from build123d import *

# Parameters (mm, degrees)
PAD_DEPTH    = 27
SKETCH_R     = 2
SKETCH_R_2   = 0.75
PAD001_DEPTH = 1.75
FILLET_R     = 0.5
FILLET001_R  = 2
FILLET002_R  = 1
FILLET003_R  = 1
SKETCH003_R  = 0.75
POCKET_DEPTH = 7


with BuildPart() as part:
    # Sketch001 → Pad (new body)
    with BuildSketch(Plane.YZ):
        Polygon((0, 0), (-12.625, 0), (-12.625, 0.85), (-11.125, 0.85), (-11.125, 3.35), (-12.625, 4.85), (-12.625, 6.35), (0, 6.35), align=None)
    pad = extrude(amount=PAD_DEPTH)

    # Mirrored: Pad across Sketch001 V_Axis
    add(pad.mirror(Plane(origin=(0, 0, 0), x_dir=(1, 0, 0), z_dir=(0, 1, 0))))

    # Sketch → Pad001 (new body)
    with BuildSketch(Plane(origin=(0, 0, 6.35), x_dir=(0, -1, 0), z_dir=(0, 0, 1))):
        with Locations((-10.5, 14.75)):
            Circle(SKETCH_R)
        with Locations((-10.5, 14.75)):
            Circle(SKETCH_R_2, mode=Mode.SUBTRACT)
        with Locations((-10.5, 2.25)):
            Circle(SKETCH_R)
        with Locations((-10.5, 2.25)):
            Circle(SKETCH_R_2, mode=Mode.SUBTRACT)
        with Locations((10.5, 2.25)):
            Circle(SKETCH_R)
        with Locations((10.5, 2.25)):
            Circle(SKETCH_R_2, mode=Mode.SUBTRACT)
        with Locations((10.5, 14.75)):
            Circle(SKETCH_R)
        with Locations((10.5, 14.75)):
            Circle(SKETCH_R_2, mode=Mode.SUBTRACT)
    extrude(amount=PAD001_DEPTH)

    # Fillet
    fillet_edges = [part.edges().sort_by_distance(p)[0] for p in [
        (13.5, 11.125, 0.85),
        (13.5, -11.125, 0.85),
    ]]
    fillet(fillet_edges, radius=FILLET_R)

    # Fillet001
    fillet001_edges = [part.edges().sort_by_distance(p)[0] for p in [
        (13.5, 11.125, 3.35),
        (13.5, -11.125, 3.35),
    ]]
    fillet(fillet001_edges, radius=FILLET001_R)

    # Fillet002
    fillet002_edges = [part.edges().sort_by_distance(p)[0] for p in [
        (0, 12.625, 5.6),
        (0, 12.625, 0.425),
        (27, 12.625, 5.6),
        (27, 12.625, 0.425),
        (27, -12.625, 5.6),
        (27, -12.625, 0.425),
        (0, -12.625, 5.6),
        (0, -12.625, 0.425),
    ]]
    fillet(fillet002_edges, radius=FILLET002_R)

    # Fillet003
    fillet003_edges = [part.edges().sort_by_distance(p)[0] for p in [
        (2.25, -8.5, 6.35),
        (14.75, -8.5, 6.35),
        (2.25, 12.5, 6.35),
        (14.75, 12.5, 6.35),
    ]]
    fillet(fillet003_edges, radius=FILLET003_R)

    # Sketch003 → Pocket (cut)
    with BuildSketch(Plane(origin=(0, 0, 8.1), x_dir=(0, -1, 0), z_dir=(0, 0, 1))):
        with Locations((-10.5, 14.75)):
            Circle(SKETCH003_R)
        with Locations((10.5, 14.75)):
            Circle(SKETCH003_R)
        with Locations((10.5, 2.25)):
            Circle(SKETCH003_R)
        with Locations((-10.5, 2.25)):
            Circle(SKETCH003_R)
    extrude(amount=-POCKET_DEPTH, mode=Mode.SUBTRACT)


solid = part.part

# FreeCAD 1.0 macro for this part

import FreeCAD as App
import Part
import Sketcher

V = App.Vector
Q = App.Units.Quantity


def edges_at(feature, points):
    """Names of the edges that pass closest to the given points."""
    edges = feature.Shape.Edges
    near = lambda p: min(range(len(edges)), key=lambda i: edges[i].distToShape(Part.Vertex(*p))[0])
    return sorted({f"Edge{near(p) + 1}" for p in points})


def add_polygon(sketch, points):
    """Adds a closed chain of lines whose ends are joined by coincident constraints."""
    first, n = sketch.GeometryCount, len(points)
    for a, b in zip(points, points[1:] + points[:1]):
        sketch.addGeometry(Part.LineSegment(App.Vector(*a, 0), App.Vector(*b, 0)), False)
    for i in range(n):
        sketch.addConstraint(Sketcher.Constraint("Coincident", first + i, 2, first + (i + 1) % n, 1))

doc = App.newDocument("Part")
params = doc.addObject("Spreadsheet::Sheet", "Params")
for row, (alias, value) in enumerate([
    ("sketch1_width", "1.5 mm"),
    ("sketch1_height", "2.5 mm"),
    ("sketch1_height2", "6.35 mm"),
    ("pad1_length", "27 mm"),
    ("sketch2_diameter", "4 mm"),
    ("sketch2_diameter2", "1.5 mm"),
    ("pad2_length", "1.75 mm"),
    ("fillet_radius", "0.5 mm"),
    ("fillet2_radius", "2 mm"),
    ("fillet3_radius", "1 mm"),
    ("fillet4_radius", "1 mm"),
    ("sketch3_diameter", "1.5 mm"),
    ("pocket1_length", "7 mm"),
], start=1):
    params.set(f"A{row}", alias)
    params.set(f"B{row}", "=" + value)
    params.setAlias(f"B{row}", alias)

body = doc.addObject("PartDesign::Body", "Body")

# Sketch on YZ plane
sketch1 = doc.addObject("Sketcher::SketchObject", "Sketch")
body.addObject(sketch1)
sketch1.AttachmentSupport = (doc.YZ_Plane, [""])
sketch1.MapMode = "FlatFace"
add_polygon(sketch1, [(-12.6, 0), (0, 0), (0, 6.3), (-12.6, 6.3), (-12.6, 4.8), (-11.1, 3.4), (-11.1, 0.8), (-12.6, 0.8)])  # lines 0-7
sketch1.addConstraint(Sketcher.Constraint("Horizontal", 0))
sketch1.addConstraint(Sketcher.Constraint("Vertical", 1))
sketch1.addConstraint(Sketcher.Constraint("Horizontal", 2))
sketch1.addConstraint(Sketcher.Constraint("Vertical", 3))
sketch1.addConstraint(Sketcher.Constraint("Vertical", 5))
sketch1.addConstraint(Sketcher.Constraint("Horizontal", 6))
sketch1.addConstraint(Sketcher.Constraint("Vertical", 7))
sketch1.addConstraint(Sketcher.Constraint("Coincident", 0, 2, -1, 1))
sketch1.addConstraint(Sketcher.Constraint("Vertical", 3, 2, 6, 2))
sketch1.addConstraint(Sketcher.Constraint("Equal", 6, 3))
sketch1.addConstraint(Sketcher.Constraint("Angle", 4, Q("-45 deg")))
sketch1.addConstraint(Sketcher.Constraint("DistanceX", 6, 2, 6, 1, 1.5))
sketch1.addConstraint(Sketcher.Constraint("DistanceY", 5, 2, 5, 1, 2.5))
sketch1.addConstraint(Sketcher.Constraint("DistanceY", 1, 1, 1, 2, 6.35))
sketch1.addConstraint(Sketcher.Constraint("DistanceX", 0, 1, 0, 2, 12.625))
sketch1.setExpression("Constraints[19]", "Params.sketch1_width")
sketch1.setExpression("Constraints[20]", "Params.sketch1_height")
sketch1.setExpression("Constraints[21]", "Params.sketch1_height2")
pad1 = doc.addObject("PartDesign::Pad", "Pad")
body.addObject(pad1)
pad1.Profile = sketch1
pad1.setExpression("Length", "Params.pad1_length")
doc.recompute()

mirrored = doc.addObject("PartDesign::Mirrored", "Mirrored")
body.addObject(mirrored)
mirrored.Originals = [pad1]
mirrored.MirrorPlane = (doc.XZ_Plane, [""])
body.Tip = mirrored

# Sketch on XY plane
sketch2 = doc.addObject("Sketcher::SketchObject", "Sketch001")
body.addObject(sketch2)
sketch2.AttachmentSupport = (doc.XY_Plane, [""])
sketch2.MapMode = "FlatFace"
sketch2.AttachmentOffset = App.Placement(V(0, 0, 6.35), App.Rotation())
sketch2.addGeometry(Part.Circle(V(14.8, 10.5, 0), V(0, 0, 1), 2), False)
sketch2.addGeometry(Part.Circle(V(14.8, 10.5, 0), V(0, 0, 1), 0.8), False)
sketch2.addGeometry(Part.Circle(V(2.2, 10.5, 0), V(0, 0, 1), 2), False)
sketch2.addGeometry(Part.Circle(V(2.2, 10.5, 0), V(0, 0, 1), 0.8), False)
sketch2.addGeometry(Part.Circle(V(2.2, -10.5, 0), V(0, 0, 1), 2), False)
sketch2.addGeometry(Part.Circle(V(2.2, -10.5, 0), V(0, 0, 1), 0.8), False)
sketch2.addGeometry(Part.Circle(V(14.8, -10.5, 0), V(0, 0, 1), 2), False)
sketch2.addGeometry(Part.Circle(V(14.8, -10.5, 0), V(0, 0, 1), 0.8), False)
sketch2.addConstraint(Sketcher.Constraint("Coincident", 1, 3, 0, 3))
sketch2.addConstraint(Sketcher.Constraint("Coincident", 3, 3, 2, 3))
sketch2.addConstraint(Sketcher.Constraint("Coincident", 5, 3, 4, 3))
sketch2.addConstraint(Sketcher.Constraint("Coincident", 7, 3, 6, 3))
sketch2.addConstraint(Sketcher.Constraint("Equal", 0, 2))
sketch2.addConstraint(Sketcher.Constraint("Equal", 1, 3))
sketch2.addConstraint(Sketcher.Constraint("Equal", 2, 4))
sketch2.addConstraint(Sketcher.Constraint("Equal", 3, 5))
sketch2.addConstraint(Sketcher.Constraint("Equal", 4, 6))
sketch2.addConstraint(Sketcher.Constraint("Equal", 5, 7))
sketch2.addConstraint(Sketcher.Constraint("Symmetric", 2, 3, 4, 3, -1))
sketch2.addConstraint(Sketcher.Constraint("Symmetric", 0, 3, 6, 3, -1))
sketch2.addConstraint(Sketcher.Constraint("Horizontal", 1, 3, 2, 3))
sketch2.addConstraint(Sketcher.Constraint("Diameter", 0, 4.0))
sketch2.addConstraint(Sketcher.Constraint("Diameter", 1, 1.5))
sketch2.addConstraint(Sketcher.Constraint("DistanceY", 4, 3, 2, 3, 21.0))
sketch2.addConstraint(Sketcher.Constraint("DistanceX", 2, 3, 0, 3, 12.5))
sketch2.addConstraint(Sketcher.Constraint("DistanceX", -1, 1, 0, 3, 14.75))
sketch2.setExpression("Constraints[13]", "Params.sketch2_diameter")
sketch2.setExpression("Constraints[14]", "Params.sketch2_diameter2")
pad2 = doc.addObject("PartDesign::Pad", "Pad001")
body.addObject(pad2)
pad2.Profile = sketch2
pad2.setExpression("Length", "Params.pad2_length")
doc.recompute()

fillet = doc.addObject("PartDesign::Fillet", "Fillet")
body.addObject(fillet)
fillet.Base = (pad2, edges_at(pad2, [(13.5, 11.125, 0.85), (13.5, -11.125, 0.85)]))
fillet.setExpression("Radius", "Params.fillet_radius")
doc.recompute()

fillet2 = doc.addObject("PartDesign::Fillet", "Fillet001")
body.addObject(fillet2)
fillet2.Base = (fillet, edges_at(fillet, [(13.5, 11.125, 3.35), (13.5, -11.125, 3.35)]))
fillet2.setExpression("Radius", "Params.fillet2_radius")
doc.recompute()

fillet3 = doc.addObject("PartDesign::Fillet", "Fillet002")
body.addObject(fillet3)
fillet3.Base = (fillet2, edges_at(fillet2, [
    (0, 12.625, 5.6),
    (0, 12.625, 0.425),
    (27, 12.625, 5.6),
    (27, 12.625, 0.425),
    (27, -12.625, 5.6),
    (27, -12.625, 0.425),
    (0, -12.625, 5.6),
    (0, -12.625, 0.425),
]))
fillet3.setExpression("Radius", "Params.fillet3_radius")
doc.recompute()

fillet4 = doc.addObject("PartDesign::Fillet", "Fillet003")
body.addObject(fillet4)
fillet4.Base = (fillet3, edges_at(fillet3, [
    (2.25, -8.5, 6.35),
    (14.75, -8.5, 6.35),
    (2.25, 12.5, 6.35),
    (14.75, 12.5, 6.35),
]))
fillet4.setExpression("Radius", "Params.fillet4_radius")

# Sketch on XY plane
sketch3 = doc.addObject("Sketcher::SketchObject", "Sketch002")
body.addObject(sketch3)
sketch3.AttachmentSupport = (doc.XY_Plane, [""])
sketch3.MapMode = "FlatFace"
sketch3.AttachmentOffset = App.Placement(V(0, 0, 8.1), App.Rotation())
sketch3.addGeometry(Part.Circle(V(14.8, 10.5, 0), V(0, 0, 1), 0.8), False)
sketch3.addGeometry(Part.Circle(V(14.8, -10.5, 0), V(0, 0, 1), 0.8), False)
sketch3.addGeometry(Part.Circle(V(2.2, -10.5, 0), V(0, 0, 1), 0.8), False)
sketch3.addGeometry(Part.Circle(V(2.2, 10.5, 0), V(0, 0, 1), 0.8), False)
sketch3.addConstraint(Sketcher.Constraint("Equal", 0, 1))
sketch3.addConstraint(Sketcher.Constraint("Equal", 1, 2))
sketch3.addConstraint(Sketcher.Constraint("Equal", 2, 3))
sketch3.addConstraint(Sketcher.Constraint("Symmetric", 0, 3, 1, 3, -1))
sketch3.addConstraint(Sketcher.Constraint("Symmetric", 2, 3, 3, 3, -1))
sketch3.addConstraint(Sketcher.Constraint("Horizontal", 1, 3, 2, 3))
sketch3.addConstraint(Sketcher.Constraint("Diameter", 0, 1.5))
sketch3.addConstraint(Sketcher.Constraint("DistanceY", 1, 3, 0, 3, 21.0))
sketch3.addConstraint(Sketcher.Constraint("DistanceX", 2, 3, 1, 3, 12.5))
sketch3.addConstraint(Sketcher.Constraint("DistanceX", -1, 1, 0, 3, 14.75))
sketch3.setExpression("Constraints[6]", "Params.sketch3_diameter")
pocket1 = doc.addObject("PartDesign::Pocket", "Pocket")
body.addObject(pocket1)
pocket1.Profile = sketch3
pocket1.setExpression("Length", "Params.pocket1_length")

doc.recompute()
